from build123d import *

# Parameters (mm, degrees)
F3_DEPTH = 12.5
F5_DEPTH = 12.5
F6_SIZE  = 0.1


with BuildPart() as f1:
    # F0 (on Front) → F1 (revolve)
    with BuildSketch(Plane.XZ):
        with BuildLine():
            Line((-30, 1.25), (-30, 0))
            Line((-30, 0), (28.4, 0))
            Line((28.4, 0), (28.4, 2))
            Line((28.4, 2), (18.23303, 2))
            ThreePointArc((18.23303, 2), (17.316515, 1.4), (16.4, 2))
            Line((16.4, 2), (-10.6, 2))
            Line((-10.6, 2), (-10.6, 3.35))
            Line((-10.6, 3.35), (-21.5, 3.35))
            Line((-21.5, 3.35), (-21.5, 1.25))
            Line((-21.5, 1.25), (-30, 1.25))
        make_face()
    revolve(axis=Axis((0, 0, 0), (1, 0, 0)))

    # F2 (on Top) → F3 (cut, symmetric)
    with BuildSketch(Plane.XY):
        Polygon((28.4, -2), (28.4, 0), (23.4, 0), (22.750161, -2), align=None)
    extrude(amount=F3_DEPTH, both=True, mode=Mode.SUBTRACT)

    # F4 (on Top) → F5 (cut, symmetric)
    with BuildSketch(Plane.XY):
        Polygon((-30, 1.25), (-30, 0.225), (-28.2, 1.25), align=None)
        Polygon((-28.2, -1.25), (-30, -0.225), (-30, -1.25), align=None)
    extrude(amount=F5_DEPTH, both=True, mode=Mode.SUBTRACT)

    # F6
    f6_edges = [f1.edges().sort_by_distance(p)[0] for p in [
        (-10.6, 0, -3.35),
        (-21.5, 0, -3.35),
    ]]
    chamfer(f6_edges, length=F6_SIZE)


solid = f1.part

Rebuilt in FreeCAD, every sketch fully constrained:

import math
import FreeCAD as App
import Part
import Sketcher
from FreeCAD import Vector
Q = App.Units.Quantity


def edges_at(feature, points):
    """Names of the edges that pass closest to the given points."""
    edges = feature.Shape.Edges
    near = lambda p: min(range(len(edges)), key=lambda i: edges[i].distToShape(Part.Vertex(*p))[0])
    return sorted({f"Edge{near(p) + 1}" for p in points})


def add_polygon(sketch, points):
    """Adds a closed chain of lines whose ends are joined by coincident constraints."""
    first, n = sketch.GeometryCount, len(points)
    for a, b in zip(points, points[1:] + points[:1]):
        sketch.addGeometry(Part.LineSegment(App.Vector(*a, 0), App.Vector(*b, 0)), False)
    for i in range(n):
        sketch.addConstraint(Sketcher.Constraint("Coincident", first + i, 2, first + (i + 1) % n, 1))

doc = App.newDocument("Part")
body = doc.addObject("PartDesign::Body", "Body")

# Sketch on XZ plane
sketch1 = body.newObject("Sketcher::SketchObject", "Sketch")
sketch1.AttachmentSupport = (doc.getObject("XZ_Plane"), [""])
sketch1.MapMode = "FlatFace"
sketch1.addGeometry([
    Part.LineSegment(Vector(-30, 1.25, 0), Vector(-30, 0, 0)),  # 0
    Part.LineSegment(Vector(-30, 0, 0), Vector(28.4, 0, 0)),  # 1
    Part.LineSegment(Vector(28.4, 0, 0), Vector(28.4, 2, 0)),  # 2
    Part.LineSegment(Vector(28.4, 2, 0), Vector(18.23303, 2, 0)),  # 3
    Part.ArcOfCircle(Part.Circle(Vector(17.316515, 2.4, 0), Vector(0, 0, 1), 1), math.radians(-156.421829), math.radians(-23.578171)),  # 4
    Part.LineSegment(Vector(16.4, 2, 0), Vector(-10.6, 2, 0)),  # 5
    Part.LineSegment(Vector(-10.6, 2, 0), Vector(-10.6, 3.35, 0)),  # 6
    Part.LineSegment(Vector(-10.6, 3.35, 0), Vector(-21.5, 3.35, 0)),  # 7
    Part.LineSegment(Vector(-21.5, 3.35, 0), Vector(-21.5, 1.25, 0)),  # 8
    Part.LineSegment(Vector(-21.5, 1.25, 0), Vector(-30, 1.25, 0)),  # 9
], False)
sketch1.addConstraint([
    Sketcher.Constraint("Coincident", 0, 2, 1, 1),
    Sketcher.Constraint("Coincident", 1, 2, 2, 1),
    Sketcher.Constraint("Coincident", 2, 2, 3, 1),
    Sketcher.Constraint("Coincident", 3, 2, 4, 2),
    Sketcher.Constraint("Coincident", 4, 1, 5, 1),
    Sketcher.Constraint("Coincident", 5, 2, 6, 1),
    Sketcher.Constraint("Coincident", 6, 2, 7, 1),
    Sketcher.Constraint("Coincident", 7, 2, 8, 1),
    Sketcher.Constraint("Coincident", 8, 2, 9, 1),
    Sketcher.Constraint("Coincident", 9, 2, 0, 1),
    Sketcher.Constraint("Vertical", 0),
    Sketcher.Constraint("Horizontal", 1),
    Sketcher.Constraint("Vertical", 2),
    Sketcher.Constraint("Horizontal", 3),
    Sketcher.Constraint("Horizontal", 5),
    Sketcher.Constraint("Vertical", 6),
    Sketcher.Constraint("Horizontal", 7),
    Sketcher.Constraint("Vertical", 8),
    Sketcher.Constraint("Horizontal", 9),
    Sketcher.Constraint("PointOnObject", 0, 2, -1),
    Sketcher.Constraint("Horizontal", 3, 2, 4, 1),
    Sketcher.Constraint("Radius", 4, Q("1 mm")),
    Sketcher.Constraint("DistanceX", 5, 2, 5, 1, Q("27 mm")),
    Sketcher.Constraint("DistanceY", 2, 1, 2, 2, Q("2 mm")),
    Sketcher.Constraint("DistanceX", 1, 1, 1, 2, Q("58.4 mm")),
    Sketcher.Constraint("DistanceX", 7, 2, 7, 1, Q("10.9 mm")),
    Sketcher.Constraint("DistanceX", 9, 2, 9, 1, Q("8.5 mm")),
    Sketcher.Constraint("DistanceY", 8, 2, 8, 1, Q("2.1 mm")),
    Sketcher.Constraint("DistanceX", 0, 2, -1, 1, Q("30 mm")),
    Sketcher.Constraint("DistanceY", 0, 2, 0, 1, Q("1.25 mm")),
    Sketcher.Constraint("DistanceY", -1, 1, 4, 3, Q("2.4 mm")),
])
revolution = body.newObject("PartDesign::Revolution", "Revolution")
revolution.Profile = sketch1
revolution.ReferenceAxis = (sketch1, ["H_Axis"])
revolution.Angle = 360

# Sketch on XY plane
sketch2 = body.newObject("Sketcher::SketchObject", "Sketch001")
sketch2.AttachmentSupport = (doc.getObject("XY_Plane"), [""])
sketch2.MapMode = "FlatFace"
add_polygon(sketch2, [(28.4, -2), (28.4, 0), (23.4, 0), (22.750161, -2)])  # lines 0-3
sketch2.addConstraint([
    Sketcher.Constraint("Vertical", 0),
    Sketcher.Constraint("Horizontal", 1),
    Sketcher.Constraint("Horizontal", 3),
    Sketcher.Constraint("PointOnObject", 0, 2, -1),
    Sketcher.Constraint("DistanceX", 1, 2, 1, 1, Q("5 mm")),
    Sketcher.Constraint("DistanceY", 0, 1, 0, 2, Q("2 mm")),
    Sketcher.Constraint("Angle", 2, Q("-107.99999 deg")),
    Sketcher.Constraint("DistanceX", -1, 1, 0, 2, Q("28.4 mm")),
])
pocket1 = body.newObject("PartDesign::Pocket", "Pocket")
pocket1.Profile = sketch2
pocket1.Length = 25
pocket1.Midplane = True

# Sketch on XY plane
sketch3 = body.newObject("Sketcher::SketchObject", "Sketch002")
sketch3.AttachmentSupport = (doc.getObject("XY_Plane"), [""])
sketch3.MapMode = "FlatFace"
add_polygon(sketch3, [(-30, 1.25), (-30, 0.225), (-28.2, 1.25)])  # lines 0-2
add_polygon(sketch3, [(-28.2, -1.25), (-30, -0.225), (-30, -1.25)])  # lines 3-5
sketch3.addConstraint([
    Sketcher.Constraint("Vertical", 0),
    Sketcher.Constraint("Horizontal", 2),
    Sketcher.Constraint("Vertical", 4),
    Sketcher.Constraint("Horizontal", 5),
    Sketcher.Constraint("Symmetric", 0, 2, 3, 2, -1),
    Sketcher.Constraint("Symmetric", 1, 2, 5, 2, -1),
    Sketcher.Constraint("DistanceX", 2, 2, 2, 1, Q("1.8 mm")),
    Sketcher.Constraint("DistanceX", 0, 2, -1, 1, Q("30 mm")),
    Sketcher.Constraint("DistanceY", 4, 2, 2, 2, Q("2.5 mm")),
    Sketcher.Constraint("DistanceY", 0, 2, 0, 1, Q("1.025 mm")),
])
pocket2 = body.newObject("PartDesign::Pocket", "Pocket001")
pocket2.Profile = sketch3
pocket2.Length = 25
pocket2.Midplane = True
doc.recompute()

chamfer = body.newObject("PartDesign::Chamfer", "Chamfer")
chamfer.Base = (pocket2, edges_at(pocket2, [(-10.6, 0, -3.35), (-21.5, 0, -3.35)]))
chamfer.Size = 0.1

doc.recompute()
